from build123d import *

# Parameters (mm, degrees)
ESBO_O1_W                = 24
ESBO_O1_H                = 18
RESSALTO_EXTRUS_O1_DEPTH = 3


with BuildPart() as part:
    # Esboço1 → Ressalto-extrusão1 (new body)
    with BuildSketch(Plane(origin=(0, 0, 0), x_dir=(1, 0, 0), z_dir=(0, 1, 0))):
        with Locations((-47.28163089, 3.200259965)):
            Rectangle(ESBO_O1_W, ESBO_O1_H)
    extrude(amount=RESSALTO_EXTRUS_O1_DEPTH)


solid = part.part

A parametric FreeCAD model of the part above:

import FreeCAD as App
import Part
import Sketcher

V = App.Vector
Q = App.Units.Quantity

doc = App.newDocument("Part")
body = doc.addObject("PartDesign::Body", "Body")

sketch1 = body.newObject("Sketcher::SketchObject", "Sketch")
sketch1.AttachmentSupport = (doc.getObject("XZ_Plane"), [""])
sketch1.MapMode = "FlatFace"
sketch1.addGeometry(Part.LineSegment(V(-59, -12, 0), V(-59, 6, 0)), False)
sketch1.addGeometry(Part.LineSegment(V(-59, 6, 0), V(-35, 6, 0)), False)
sketch1.addGeometry(Part.LineSegment(V(-35, 6, 0), V(-35, -12, 0)), False)
sketch1.addGeometry(Part.LineSegment(V(-35, -12, 0), V(-59, -12, 0)), False)
sketch1.addConstraint(Sketcher.Constraint("Coincident", 0, 2, 1, 1))
sketch1.addConstraint(Sketcher.Constraint("Coincident", 1, 2, 2, 1))
sketch1.addConstraint(Sketcher.Constraint("Coincident", 2, 2, 3, 1))
sketch1.addConstraint(Sketcher.Constraint("Coincident", 3, 2, 0, 1))
sketch1.addConstraint(Sketcher.Constraint("Vertical", 0))
sketch1.addConstraint(Sketcher.Constraint("Horizontal", 1))
sketch1.addConstraint(Sketcher.Constraint("Vertical", 2))
sketch1.addConstraint(Sketcher.Constraint("Horizontal", 3))
sketch1.addConstraint(Sketcher.Constraint("DistanceX", 1, 1, 1, 2, Q("24 mm")))
sketch1.addConstraint(Sketcher.Constraint("DistanceY", 0, 1, 0, 2, Q("18 mm")))
sketch1.addConstraint(Sketcher.Constraint("DistanceX", 0, 2, -1, 1, Q("59.281631 mm")))
sketch1.addConstraint(Sketcher.Constraint("DistanceY", -1, 1, 0, 2, Q("5.79974 mm")))
pad1 = body.newObject("PartDesign::Pad", "Pad")
pad1.Profile = sketch1
pad1.Length = 3
pad1.Reversed = True

doc.recompute()
